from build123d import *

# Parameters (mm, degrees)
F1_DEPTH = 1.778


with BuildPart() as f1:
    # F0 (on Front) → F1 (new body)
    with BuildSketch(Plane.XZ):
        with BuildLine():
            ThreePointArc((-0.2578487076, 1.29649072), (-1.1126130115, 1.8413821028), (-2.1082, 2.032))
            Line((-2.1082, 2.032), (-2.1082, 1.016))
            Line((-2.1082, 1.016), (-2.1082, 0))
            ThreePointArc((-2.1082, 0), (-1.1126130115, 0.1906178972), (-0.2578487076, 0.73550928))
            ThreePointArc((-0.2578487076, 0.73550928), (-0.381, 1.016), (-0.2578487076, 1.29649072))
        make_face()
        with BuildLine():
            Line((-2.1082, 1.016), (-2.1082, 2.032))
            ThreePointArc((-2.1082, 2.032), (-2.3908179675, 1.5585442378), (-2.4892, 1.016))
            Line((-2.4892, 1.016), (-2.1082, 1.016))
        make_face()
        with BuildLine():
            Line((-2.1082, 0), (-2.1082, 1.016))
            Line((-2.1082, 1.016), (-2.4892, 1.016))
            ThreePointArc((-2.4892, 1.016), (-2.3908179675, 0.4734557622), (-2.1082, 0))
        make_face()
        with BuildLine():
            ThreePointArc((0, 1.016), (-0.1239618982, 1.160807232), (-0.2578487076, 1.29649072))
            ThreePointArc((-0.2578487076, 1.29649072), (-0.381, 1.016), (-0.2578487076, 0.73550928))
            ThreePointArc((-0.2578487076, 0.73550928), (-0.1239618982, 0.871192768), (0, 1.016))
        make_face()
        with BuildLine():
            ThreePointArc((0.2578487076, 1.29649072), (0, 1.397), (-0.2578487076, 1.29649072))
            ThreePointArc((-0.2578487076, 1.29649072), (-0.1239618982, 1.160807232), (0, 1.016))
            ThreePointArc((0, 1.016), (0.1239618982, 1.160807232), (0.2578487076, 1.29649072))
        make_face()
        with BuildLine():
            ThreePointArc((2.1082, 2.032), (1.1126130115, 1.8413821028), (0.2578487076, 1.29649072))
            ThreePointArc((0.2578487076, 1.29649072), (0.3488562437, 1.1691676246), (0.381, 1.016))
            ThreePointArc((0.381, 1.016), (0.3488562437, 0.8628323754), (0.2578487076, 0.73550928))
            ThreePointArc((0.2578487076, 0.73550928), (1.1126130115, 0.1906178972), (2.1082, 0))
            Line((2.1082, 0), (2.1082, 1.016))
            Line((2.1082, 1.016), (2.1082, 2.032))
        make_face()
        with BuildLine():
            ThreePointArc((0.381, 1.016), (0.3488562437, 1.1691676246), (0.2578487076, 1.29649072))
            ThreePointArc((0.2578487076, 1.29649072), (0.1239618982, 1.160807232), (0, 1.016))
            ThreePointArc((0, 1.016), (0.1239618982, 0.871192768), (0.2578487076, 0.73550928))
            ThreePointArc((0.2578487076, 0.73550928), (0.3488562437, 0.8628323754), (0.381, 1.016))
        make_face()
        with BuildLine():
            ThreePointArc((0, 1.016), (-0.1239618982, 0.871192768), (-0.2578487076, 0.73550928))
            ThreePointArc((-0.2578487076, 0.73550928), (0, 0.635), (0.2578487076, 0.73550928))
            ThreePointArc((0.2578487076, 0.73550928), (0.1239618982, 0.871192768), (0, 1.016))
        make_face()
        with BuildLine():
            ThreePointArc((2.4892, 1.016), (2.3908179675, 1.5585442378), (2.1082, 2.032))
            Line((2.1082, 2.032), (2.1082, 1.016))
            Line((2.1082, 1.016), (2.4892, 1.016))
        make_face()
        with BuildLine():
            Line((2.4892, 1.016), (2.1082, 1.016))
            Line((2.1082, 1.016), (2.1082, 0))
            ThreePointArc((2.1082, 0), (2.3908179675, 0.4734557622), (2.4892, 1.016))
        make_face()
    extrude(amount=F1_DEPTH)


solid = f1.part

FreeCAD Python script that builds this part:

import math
import FreeCAD as App
import Part
import Sketcher

V = App.Vector
Q = App.Units.Quantity

doc = App.newDocument("Part")
body = doc.addObject("PartDesign::Body", "Body")

sketch1 = doc.addObject("Sketcher::SketchObject", "Sketch")
body.addObject(sketch1)
sketch1.AttachmentSupport = (doc.XZ_Plane, [""])
sketch1.MapMode = "FlatFace"
sketch1.addGeometry(Part.ArcOfCircle(Part.Circle(V(-2.11, -0.66, 0), V(0, 0, 1), 2.7), math.radians(47), math.radians(90)), False)
sketch1.addGeometry(Part.ArcOfCircle(Part.Circle(V(-0.94, 1.02, 0), V(0, 0, 1), 1.55), math.radians(139), math.radians(180)), False)
sketch1.addGeometry(Part.ArcOfCircle(Part.Circle(V(-0.94, 1.02, 0), V(0, 0, 1), 1.55), math.radians(180), math.radians(221)), False)
sketch1.addGeometry(Part.ArcOfCircle(Part.Circle(V(-2.11, 2.7, 0), V(0, 0, 1), 2.7), math.radians(-90), math.radians(-47)), False)
sketch1.addGeometry(Part.ArcOfCircle(Part.Circle(V(0, 1.02, 0), V(0, 0, 1), 0.38), math.radians(-133), math.radians(-47)), False)
sketch1.addGeometry(Part.ArcOfCircle(Part.Circle(V(2.11, 2.7, 0), V(0, 0, 1), 2.7), math.radians(-133), math.radians(-90)), False)
sketch1.addGeometry(Part.ArcOfCircle(Part.Circle(V(0.94, 1.02, 0), V(0, 0, 1), 1.55), math.radians(-41), math.radians(0)), False)
sketch1.addGeometry(Part.ArcOfCircle(Part.Circle(V(0.94, 1.02, 0), V(0, 0, 1), 1.55), math.radians(0), math.radians(41)), False)
sketch1.addGeometry(Part.ArcOfCircle(Part.Circle(V(2.11, -0.66, 0), V(0, 0, 1), 2.7), math.radians(90), math.radians(133)), False)
sketch1.addGeometry(Part.ArcOfCircle(Part.Circle(V(0, 1.02, 0), V(0, 0, 1), 0.38), math.radians(47), math.radians(133)), False)
sketch1.addConstraint(Sketcher.Constraint("Coincident", 0, 2, 1, 1))
sketch1.addConstraint(Sketcher.Constraint("Tangent", 1, 2, 2, 1))
sketch1.addConstraint(Sketcher.Constraint("Coincident", 2, 2, 3, 1))
sketch1.addConstraint(Sketcher.Constraint("Coincident", 3, 2, 4, 1))
sketch1.addConstraint(Sketcher.Constraint("Coincident", 4, 2, 5, 1))
sketch1.addConstraint(Sketcher.Constraint("Coincident", 5, 2, 6, 1))
sketch1.addConstraint(Sketcher.Constraint("Tangent", 6, 2, 7, 1))
sketch1.addConstraint(Sketcher.Constraint("Coincident", 7, 2, 8, 1))
sketch1.addConstraint(Sketcher.Constraint("Coincident", 8, 2, 9, 1))
sketch1.addConstraint(Sketcher.Constraint("Coincident", 9, 2, 0, 1))
sketch1.addConstraint(Sketcher.Constraint("Coincident", 9, 3, 4, 3))
sketch1.addConstraint(Sketcher.Constraint("Equal", 1, 2))
sketch1.addConstraint(Sketcher.Constraint("Equal", 0, 3))
sketch1.addConstraint(Sketcher.Constraint("Equal", 3, 5))
sketch1.addConstraint(Sketcher.Constraint("Equal", 2, 6))
sketch1.addConstraint(Sketcher.Constraint("Equal", 6, 7))
sketch1.addConstraint(Sketcher.Constraint("Equal", 5, 8))
sketch1.addConstraint(Sketcher.Constraint("Equal", 4, 9))
sketch1.addConstraint(Sketcher.Constraint("Symmetric", 2, 2, 5, 2, -1, 1))
sketch1.addConstraint(Sketcher.Constraint("Symmetric", 3, 3, 5, 3, -2))
sketch1.addConstraint(Sketcher.Constraint("Symmetric", 0, 3, 8, 3, -2))
sketch1.addConstraint(Sketcher.Constraint("Symmetric", 1, 2, 6, 2, -2))
sketch1.addConstraint(Sketcher.Constraint("PointOnObject", 4, 3, -2))
sketch1.addConstraint(Sketcher.Constraint("Horizontal", 2, 3, 4, 3))
sketch1.addConstraint(Sketcher.Constraint("Horizontal", 9, 3, 1, 2))
sketch1.addConstraint(Sketcher.Constraint("Vertical", 0, 3, 3, 3))
sketch1.addConstraint(Sketcher.Constraint("Vertical", 3, 3, 0, 2))
sketch1.addConstraint(Sketcher.Constraint("Vertical", 0, 2, 2, 2))
sketch1.addConstraint(Sketcher.Constraint("Radius", 4, Q("0.015 in")))
sketch1.addConstraint(Sketcher.Constraint("DistanceY", -1, 1, 1, 3, Q("0.04 in")))
sketch1.addConstraint(Sketcher.Constraint("DistanceX", 0, 3, -1, 1, Q("0.083 in")))
sketch1.addConstraint(Sketcher.Constraint("DistanceX", 1, 2, -1, 1, Q("0.098 in")))
sketch1.addConstraint(Sketcher.Constraint("Radius", 0, 2.695257))
pad1 = doc.addObject("PartDesign::Pad", "Pad")
body.addObject(pad1)
pad1.Profile = sketch1
pad1.Length = Q("0.07 in")

doc.recompute()
